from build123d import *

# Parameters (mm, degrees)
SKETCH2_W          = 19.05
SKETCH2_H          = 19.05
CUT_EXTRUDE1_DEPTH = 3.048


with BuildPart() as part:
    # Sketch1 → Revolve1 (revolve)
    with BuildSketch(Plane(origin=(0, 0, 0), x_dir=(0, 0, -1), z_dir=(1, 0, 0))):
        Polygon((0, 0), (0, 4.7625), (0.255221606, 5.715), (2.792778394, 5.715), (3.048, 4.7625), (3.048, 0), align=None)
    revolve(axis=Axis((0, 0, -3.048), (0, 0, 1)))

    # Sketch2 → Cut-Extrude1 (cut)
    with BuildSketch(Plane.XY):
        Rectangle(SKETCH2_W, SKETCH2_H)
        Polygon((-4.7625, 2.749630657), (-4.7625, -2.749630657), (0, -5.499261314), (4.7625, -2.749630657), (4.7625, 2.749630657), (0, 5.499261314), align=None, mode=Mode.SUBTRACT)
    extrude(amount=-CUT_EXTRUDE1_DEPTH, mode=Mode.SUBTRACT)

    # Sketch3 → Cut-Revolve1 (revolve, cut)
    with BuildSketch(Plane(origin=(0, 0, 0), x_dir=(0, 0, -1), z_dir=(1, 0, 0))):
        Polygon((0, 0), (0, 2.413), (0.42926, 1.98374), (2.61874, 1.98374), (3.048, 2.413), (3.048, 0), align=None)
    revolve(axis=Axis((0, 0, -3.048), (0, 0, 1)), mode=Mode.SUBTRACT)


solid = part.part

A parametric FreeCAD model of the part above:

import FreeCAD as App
import Part
import Sketcher
Q = App.Units.Quantity


def add_polygon(sketch, points):
    """Adds a closed chain of lines whose ends are joined by coincident constraints."""
    first, n = sketch.GeometryCount, len(points)
    for a, b in zip(points, points[1:] + points[:1]):
        sketch.addGeometry(Part.LineSegment(App.Vector(*a, 0), App.Vector(*b, 0)), False)
    for i in range(n):
        sketch.addConstraint(Sketcher.Constraint("Coincident", first + i, 2, first + (i + 1) % n, 1))

doc = App.newDocument("Part")
body = doc.addObject("PartDesign::Body", "Body")

# Sketch on YZ plane
sketch1 = body.newObject("Sketcher::SketchObject", "Sketch")
sketch1.AttachmentSupport = (doc.getObject("YZ_Plane"), [""])
sketch1.MapMode = "FlatFace"
add_polygon(sketch1, [(4.7625, 0), (0, 0), (0, -3.048), (4.7625, -3.048), (5.715, -2.792778), (5.715, -0.255222)])  # lines 0-5
sketch1.addConstraint([
    Sketcher.Constraint("Horizontal", 0),
    Sketcher.Constraint("Vertical", 1),
    Sketcher.Constraint("Horizontal", 2),
    Sketcher.Constraint("Vertical", 4),
    Sketcher.Constraint("Coincident", 0, 2, -1, 1),
    Sketcher.Constraint("Vertical", 2, 2, 5, 2),
    Sketcher.Constraint("Equal", 3, 5),
    Sketcher.Constraint("Angle", 3, Q("15 deg")),
    Sketcher.Constraint("DistanceY", 1, 2, 1, 1, Q("0.12 in")),
    Sketcher.Constraint("DistanceX", 0, 2, 0, 1, Q("0.1875 in")),
    Sketcher.Constraint("DistanceX", -1, 1, 3, 2, Q("0.225 in")),
])
revolution = body.newObject("PartDesign::Revolution", "Revolution")
revolution.Profile = sketch1
revolution.ReferenceAxis = (sketch1, ["V_Axis"])
revolution.Angle = 360

# Sketch on XY plane
sketch2 = body.newObject("Sketcher::SketchObject", "Sketch001")
sketch2.AttachmentSupport = (doc.getObject("XY_Plane"), [""])
sketch2.MapMode = "FlatFace"
add_polygon(sketch2, [(-9.525, 9.525), (-9.525, -9.525), (9.525, -9.525), (9.525, 9.525)])  # lines 0-3
add_polygon(sketch2, [(-4.7625, -2.749631), (-4.7625, 2.749631), (0, 5.499261), (4.7625, 2.749631), (4.7625, -2.749631), (0, -5.499261)])  # lines 4-9
sketch2.addConstraint([
    Sketcher.Constraint("Vertical", 0),
    Sketcher.Constraint("Horizontal", 1),
    Sketcher.Constraint("Vertical", 2),
    Sketcher.Constraint("Horizontal", 3),
    Sketcher.Constraint("Vertical", 4),
    Sketcher.Constraint("Vertical", 7),
    Sketcher.Constraint("Symmetric", 0, 2, 2, 2, -1, 1),
    Sketcher.Constraint("Symmetric", 4, 2, 7, 2, -1, 1),
    Sketcher.Constraint("Symmetric", 5, 2, 8, 2, -1, 1),
    Sketcher.Constraint("PointOnObject", 5, 2, -2),
    Sketcher.Constraint("Parallel", 6, 9),
    Sketcher.Constraint("Horizontal", 4, 2, 6, 2),
    Sketcher.Constraint("Equal", 3, 0),
    Sketcher.Constraint("Angle", 5, Q("30 deg")),
    Sketcher.Constraint("DistanceX", 1, 1, 1, 2, Q("0.75 in")),
    Sketcher.Constraint("DistanceX", 4, 2, -1, 1, Q("0.1875 in")),
    Sketcher.Constraint("DistanceY", 4, 1, 4, 2, Q("5.499261 mm")),
])
pocket1 = body.newObject("PartDesign::Pocket", "Pocket")
pocket1.Profile = sketch2
pocket1.Length = Q("0.12 in")

# Sketch on YZ plane
sketch3 = body.newObject("Sketcher::SketchObject", "Sketch002")
sketch3.AttachmentSupport = (doc.getObject("YZ_Plane"), [""])
sketch3.MapMode = "FlatFace"
add_polygon(sketch3, [(2.413, 0), (0, 0), (0, -3.048), (2.413, -3.048), (1.98374, -2.61874), (1.98374, -0.42926)])  # lines 0-5
sketch3.addConstraint([
    Sketcher.Constraint("Horizontal", 0),
    Sketcher.Constraint("Vertical", 1),
    Sketcher.Constraint("Horizontal", 2),
    Sketcher.Constraint("Vertical", 4),
    Sketcher.Constraint("Coincident", 0, 2, -1, 1),
    Sketcher.Constraint("Perpendicular", 3, 5),
    Sketcher.Constraint("Vertical", 2, 2, 5, 2),
    Sketcher.Constraint("Equal", 3, 5),
    Sketcher.Constraint("DistanceY", 1, 2, 1, 1, Q("0.12 in")),
    Sketcher.Constraint("DistanceX", 0, 2, 0, 1, Q("0.095 in")),
    Sketcher.Constraint("DistanceY", 4, 1, 4, 2, Q("0.0862 in")),
])
groove = body.newObject("PartDesign::Groove", "Groove")
groove.Profile = sketch3
groove.ReferenceAxis = (sketch3, ["V_Axis"])
groove.Angle = 360

doc.recompute()
